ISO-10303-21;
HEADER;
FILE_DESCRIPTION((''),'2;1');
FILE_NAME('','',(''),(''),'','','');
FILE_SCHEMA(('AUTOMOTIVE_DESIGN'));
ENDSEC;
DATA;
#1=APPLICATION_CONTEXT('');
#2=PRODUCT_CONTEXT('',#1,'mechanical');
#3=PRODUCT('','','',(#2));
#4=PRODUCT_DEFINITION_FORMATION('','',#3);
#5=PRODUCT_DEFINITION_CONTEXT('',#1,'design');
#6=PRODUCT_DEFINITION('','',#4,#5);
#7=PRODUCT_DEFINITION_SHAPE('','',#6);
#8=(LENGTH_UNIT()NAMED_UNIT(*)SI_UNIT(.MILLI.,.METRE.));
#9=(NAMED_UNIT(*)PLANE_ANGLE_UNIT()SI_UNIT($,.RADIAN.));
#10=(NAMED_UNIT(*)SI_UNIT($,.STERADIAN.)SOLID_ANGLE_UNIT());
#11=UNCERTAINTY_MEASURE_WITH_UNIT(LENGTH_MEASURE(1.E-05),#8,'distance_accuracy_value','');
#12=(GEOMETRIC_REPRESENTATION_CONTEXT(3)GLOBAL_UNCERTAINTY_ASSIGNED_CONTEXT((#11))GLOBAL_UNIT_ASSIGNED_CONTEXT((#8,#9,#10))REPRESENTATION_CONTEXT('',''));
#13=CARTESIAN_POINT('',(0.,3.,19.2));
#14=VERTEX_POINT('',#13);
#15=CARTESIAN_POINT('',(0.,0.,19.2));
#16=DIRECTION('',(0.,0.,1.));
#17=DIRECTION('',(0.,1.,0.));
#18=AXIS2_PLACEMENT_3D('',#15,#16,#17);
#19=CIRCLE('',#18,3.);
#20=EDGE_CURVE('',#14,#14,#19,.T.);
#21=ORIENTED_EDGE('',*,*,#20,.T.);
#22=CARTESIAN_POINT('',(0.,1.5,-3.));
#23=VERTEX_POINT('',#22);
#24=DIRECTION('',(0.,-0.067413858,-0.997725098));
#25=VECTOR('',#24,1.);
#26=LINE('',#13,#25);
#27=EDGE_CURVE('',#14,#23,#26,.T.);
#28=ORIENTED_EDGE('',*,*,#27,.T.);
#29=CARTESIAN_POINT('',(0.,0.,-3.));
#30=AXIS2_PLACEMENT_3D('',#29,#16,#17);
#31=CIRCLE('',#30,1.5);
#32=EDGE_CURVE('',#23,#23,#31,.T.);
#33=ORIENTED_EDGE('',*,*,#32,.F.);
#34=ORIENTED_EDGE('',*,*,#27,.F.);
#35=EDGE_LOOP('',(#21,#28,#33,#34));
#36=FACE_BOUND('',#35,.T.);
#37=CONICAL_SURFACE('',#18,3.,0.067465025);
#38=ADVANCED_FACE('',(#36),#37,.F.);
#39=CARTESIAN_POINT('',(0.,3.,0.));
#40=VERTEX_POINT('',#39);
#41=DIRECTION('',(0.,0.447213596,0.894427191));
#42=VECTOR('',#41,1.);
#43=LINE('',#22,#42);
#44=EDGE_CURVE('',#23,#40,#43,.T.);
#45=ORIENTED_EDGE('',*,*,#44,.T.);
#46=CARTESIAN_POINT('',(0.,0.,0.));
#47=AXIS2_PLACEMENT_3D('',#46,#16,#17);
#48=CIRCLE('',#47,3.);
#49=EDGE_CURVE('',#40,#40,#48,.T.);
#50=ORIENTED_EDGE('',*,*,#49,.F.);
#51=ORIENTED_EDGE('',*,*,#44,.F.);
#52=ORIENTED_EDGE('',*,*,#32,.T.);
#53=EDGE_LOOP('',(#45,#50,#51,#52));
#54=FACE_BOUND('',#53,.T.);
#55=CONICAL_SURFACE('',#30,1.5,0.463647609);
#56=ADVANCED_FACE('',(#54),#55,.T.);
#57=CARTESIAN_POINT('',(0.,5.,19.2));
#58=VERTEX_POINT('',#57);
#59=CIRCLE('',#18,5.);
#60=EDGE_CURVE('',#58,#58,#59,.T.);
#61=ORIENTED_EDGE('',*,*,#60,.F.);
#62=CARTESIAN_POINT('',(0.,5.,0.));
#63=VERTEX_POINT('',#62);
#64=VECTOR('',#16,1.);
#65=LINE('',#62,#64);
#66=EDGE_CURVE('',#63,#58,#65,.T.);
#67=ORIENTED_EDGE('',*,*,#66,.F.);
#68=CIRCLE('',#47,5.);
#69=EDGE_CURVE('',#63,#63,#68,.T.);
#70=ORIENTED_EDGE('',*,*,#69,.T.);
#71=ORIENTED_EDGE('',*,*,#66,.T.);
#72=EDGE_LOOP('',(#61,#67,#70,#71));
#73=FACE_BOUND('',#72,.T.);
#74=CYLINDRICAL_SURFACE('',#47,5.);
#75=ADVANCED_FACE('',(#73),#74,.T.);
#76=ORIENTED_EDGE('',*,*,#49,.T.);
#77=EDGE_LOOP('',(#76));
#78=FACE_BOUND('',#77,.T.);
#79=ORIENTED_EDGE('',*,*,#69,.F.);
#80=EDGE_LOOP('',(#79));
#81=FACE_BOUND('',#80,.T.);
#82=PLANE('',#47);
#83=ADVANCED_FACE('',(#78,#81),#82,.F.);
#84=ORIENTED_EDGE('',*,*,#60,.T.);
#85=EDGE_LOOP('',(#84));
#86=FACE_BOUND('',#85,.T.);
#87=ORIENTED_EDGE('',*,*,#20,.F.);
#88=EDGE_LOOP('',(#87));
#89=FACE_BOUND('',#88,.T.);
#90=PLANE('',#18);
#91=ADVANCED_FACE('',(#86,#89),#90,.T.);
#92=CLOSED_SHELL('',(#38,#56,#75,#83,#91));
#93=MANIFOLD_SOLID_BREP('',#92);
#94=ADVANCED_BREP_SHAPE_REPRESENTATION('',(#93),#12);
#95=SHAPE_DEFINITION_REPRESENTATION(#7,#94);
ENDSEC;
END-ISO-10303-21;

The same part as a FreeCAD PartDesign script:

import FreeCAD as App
import Part
import Sketcher
from FreeCAD import Vector


def add_polygon(sketch, points):
    """Adds a closed chain of lines whose ends are joined by coincident constraints."""
    first, n = sketch.GeometryCount, len(points)
    for a, b in zip(points, points[1:] + points[:1]):
        sketch.addGeometry(Part.LineSegment(App.Vector(*a, 0), App.Vector(*b, 0)), False)
    for i in range(n):
        sketch.addConstraint(Sketcher.Constraint("Coincident", first + i, 2, first + (i + 1) % n, 1))

doc = App.newDocument("Part")
body = doc.addObject("PartDesign::Body", "Body")

# Sketch on YZ plane
sketch1 = body.newObject("Sketcher::SketchObject", "Sketch")
sketch1.AttachmentSupport = (doc.getObject("YZ_Plane"), [""])
sketch1.MapMode = "FlatFace"
add_polygon(sketch1, [(5, 19.2), (3, 19.2), (1.5, -3), (3, 0), (5, 0)])  # lines 0-4
sketch1.addConstraint(Sketcher.Constraint("Horizontal", 0))
sketch1.addConstraint(Sketcher.Constraint("Horizontal", 3))
sketch1.addConstraint(Sketcher.Constraint("Vertical", 4))
sketch1.addConstraint(Sketcher.Constraint("PointOnObject", 2, 2, -1))
sketch1.addConstraint(Sketcher.Constraint("Vertical", 0, 2, 2, 2))
sketch1.addConstraint(Sketcher.Constraint("DistanceX", 0, 2, 0, 1, 2.0))
sketch1.addConstraint(Sketcher.Constraint("DistanceY", 4, 1, 4, 2, 19.2))
sketch1.addConstraint(Sketcher.Constraint("DistanceX", -1, 1, 0, 2, 3.0))
sketch1.addConstraint(Sketcher.Constraint("DistanceY", 1, 2, -1, 1, 3.0))
sketch1.addConstraint(Sketcher.Constraint("DistanceX", -1, 1, 1, 2, 1.5))
revolution = body.newObject("PartDesign::Revolution", "Revolution")
revolution.Profile = sketch1
revolution.ReferenceAxis = (sketch1, ["V_Axis"])
revolution.Angle = 360

doc.recompute()
